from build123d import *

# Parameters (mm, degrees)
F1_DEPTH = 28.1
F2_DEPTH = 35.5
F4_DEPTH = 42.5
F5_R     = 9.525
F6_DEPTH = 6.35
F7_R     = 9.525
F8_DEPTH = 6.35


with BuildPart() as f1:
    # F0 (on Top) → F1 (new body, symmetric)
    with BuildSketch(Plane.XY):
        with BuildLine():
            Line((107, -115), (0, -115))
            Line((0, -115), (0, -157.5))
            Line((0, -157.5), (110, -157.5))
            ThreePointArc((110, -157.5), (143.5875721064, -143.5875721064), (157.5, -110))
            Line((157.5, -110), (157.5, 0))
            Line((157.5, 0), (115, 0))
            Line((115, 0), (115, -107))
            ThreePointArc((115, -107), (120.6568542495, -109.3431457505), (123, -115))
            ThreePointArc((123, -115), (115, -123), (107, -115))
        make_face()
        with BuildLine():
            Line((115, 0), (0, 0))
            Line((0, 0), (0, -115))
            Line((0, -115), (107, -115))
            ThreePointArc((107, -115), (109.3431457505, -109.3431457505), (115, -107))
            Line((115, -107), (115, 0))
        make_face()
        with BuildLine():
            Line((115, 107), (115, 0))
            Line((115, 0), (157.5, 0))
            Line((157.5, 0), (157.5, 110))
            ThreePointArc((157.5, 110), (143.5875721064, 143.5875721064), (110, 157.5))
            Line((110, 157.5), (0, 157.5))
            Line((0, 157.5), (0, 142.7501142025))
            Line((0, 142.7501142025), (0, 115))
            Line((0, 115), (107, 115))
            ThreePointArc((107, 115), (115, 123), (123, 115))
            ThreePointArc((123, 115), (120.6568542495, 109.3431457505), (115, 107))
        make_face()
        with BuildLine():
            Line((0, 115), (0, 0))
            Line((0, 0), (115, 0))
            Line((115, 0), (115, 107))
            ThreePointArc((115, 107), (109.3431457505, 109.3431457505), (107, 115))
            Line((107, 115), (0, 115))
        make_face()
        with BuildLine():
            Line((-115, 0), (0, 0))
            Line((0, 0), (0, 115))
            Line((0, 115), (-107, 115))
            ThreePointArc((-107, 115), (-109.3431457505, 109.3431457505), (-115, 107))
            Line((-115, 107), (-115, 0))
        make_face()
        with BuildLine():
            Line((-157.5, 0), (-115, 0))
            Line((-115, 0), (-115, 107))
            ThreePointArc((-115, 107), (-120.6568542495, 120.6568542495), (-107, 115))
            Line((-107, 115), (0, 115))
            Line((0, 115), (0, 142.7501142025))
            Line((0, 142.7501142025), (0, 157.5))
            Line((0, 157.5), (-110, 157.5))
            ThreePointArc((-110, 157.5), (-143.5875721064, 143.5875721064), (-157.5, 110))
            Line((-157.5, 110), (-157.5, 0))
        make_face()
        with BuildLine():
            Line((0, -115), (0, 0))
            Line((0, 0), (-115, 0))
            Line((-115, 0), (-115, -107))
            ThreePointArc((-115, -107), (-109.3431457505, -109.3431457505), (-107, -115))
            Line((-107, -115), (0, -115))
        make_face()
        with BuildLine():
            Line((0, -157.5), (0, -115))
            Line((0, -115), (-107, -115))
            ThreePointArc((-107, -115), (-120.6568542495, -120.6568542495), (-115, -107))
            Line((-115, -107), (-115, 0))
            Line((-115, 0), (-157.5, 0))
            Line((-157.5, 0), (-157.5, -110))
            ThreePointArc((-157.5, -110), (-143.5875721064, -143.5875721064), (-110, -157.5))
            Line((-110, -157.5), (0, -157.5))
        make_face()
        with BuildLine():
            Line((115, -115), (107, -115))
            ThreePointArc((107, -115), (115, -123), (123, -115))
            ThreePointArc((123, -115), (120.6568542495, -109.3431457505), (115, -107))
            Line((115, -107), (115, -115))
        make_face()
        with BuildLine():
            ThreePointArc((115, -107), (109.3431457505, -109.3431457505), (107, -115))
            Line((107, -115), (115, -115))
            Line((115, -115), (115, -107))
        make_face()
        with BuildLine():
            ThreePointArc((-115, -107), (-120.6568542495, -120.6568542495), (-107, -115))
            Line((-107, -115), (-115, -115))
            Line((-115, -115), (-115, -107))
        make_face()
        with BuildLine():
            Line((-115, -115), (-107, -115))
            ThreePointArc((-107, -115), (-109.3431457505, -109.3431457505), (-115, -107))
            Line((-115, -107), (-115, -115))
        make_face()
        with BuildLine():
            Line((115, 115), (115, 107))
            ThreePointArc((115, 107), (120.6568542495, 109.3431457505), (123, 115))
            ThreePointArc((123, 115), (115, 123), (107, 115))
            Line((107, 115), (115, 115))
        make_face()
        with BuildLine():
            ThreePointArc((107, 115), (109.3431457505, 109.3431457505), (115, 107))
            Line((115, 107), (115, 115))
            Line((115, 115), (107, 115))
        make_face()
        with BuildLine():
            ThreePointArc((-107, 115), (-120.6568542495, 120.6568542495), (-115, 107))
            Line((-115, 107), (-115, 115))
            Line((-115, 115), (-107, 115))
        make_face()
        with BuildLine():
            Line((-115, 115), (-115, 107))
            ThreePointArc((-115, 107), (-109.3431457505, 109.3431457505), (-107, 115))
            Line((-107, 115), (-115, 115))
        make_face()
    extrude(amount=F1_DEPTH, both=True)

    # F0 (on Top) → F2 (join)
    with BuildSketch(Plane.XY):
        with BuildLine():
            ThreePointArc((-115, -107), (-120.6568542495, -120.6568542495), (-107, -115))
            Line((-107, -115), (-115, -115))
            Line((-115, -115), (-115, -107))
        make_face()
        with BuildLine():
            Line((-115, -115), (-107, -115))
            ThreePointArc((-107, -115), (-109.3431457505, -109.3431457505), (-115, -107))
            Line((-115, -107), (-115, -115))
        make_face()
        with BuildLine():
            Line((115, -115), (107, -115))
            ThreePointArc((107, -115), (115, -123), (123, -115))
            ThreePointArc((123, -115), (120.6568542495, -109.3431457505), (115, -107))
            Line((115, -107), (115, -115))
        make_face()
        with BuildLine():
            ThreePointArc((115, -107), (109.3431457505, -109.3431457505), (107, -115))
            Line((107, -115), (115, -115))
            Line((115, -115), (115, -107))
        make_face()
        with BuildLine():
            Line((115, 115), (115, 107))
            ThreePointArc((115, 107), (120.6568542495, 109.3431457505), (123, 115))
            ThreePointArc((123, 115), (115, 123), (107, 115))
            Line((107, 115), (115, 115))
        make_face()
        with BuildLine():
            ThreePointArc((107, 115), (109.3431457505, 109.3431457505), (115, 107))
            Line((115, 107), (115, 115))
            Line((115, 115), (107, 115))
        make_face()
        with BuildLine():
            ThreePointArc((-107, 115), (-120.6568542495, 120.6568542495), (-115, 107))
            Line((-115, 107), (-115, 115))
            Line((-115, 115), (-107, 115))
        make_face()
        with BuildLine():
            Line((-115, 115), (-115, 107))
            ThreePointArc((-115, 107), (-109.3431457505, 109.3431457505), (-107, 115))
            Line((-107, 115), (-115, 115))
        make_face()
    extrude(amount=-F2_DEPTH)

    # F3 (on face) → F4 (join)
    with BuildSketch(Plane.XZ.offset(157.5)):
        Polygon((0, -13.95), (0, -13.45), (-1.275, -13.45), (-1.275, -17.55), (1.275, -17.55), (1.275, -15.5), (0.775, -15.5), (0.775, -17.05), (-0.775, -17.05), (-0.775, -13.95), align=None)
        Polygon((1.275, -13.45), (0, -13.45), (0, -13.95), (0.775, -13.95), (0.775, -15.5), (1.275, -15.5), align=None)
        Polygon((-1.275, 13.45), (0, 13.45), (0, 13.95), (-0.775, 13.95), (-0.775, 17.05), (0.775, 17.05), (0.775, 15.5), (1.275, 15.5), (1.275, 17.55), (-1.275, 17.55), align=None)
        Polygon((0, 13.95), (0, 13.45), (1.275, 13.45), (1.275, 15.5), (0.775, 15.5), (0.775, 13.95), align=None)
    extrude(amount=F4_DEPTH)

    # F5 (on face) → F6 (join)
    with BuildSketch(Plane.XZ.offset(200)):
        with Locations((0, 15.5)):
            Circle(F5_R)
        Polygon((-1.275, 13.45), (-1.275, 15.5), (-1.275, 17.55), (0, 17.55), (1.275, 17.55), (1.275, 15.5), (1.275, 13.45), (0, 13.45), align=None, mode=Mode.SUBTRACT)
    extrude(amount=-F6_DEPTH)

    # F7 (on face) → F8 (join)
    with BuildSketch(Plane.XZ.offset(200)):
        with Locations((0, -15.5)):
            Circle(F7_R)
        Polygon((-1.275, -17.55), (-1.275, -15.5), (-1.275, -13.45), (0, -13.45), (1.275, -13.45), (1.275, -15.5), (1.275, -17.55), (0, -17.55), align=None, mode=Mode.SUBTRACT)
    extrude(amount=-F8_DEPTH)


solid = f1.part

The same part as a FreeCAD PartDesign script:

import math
import FreeCAD as App
import Part
import Sketcher

V = App.Vector
Q = App.Units.Quantity

doc = App.newDocument("Part")
body = doc.addObject("PartDesign::Body", "Body")

sketch1 = doc.addObject("Sketcher::SketchObject", "Sketch")
body.addObject(sketch1)
sketch1.AttachmentSupport = (doc.XY_Plane, [""])
sketch1.MapMode = "FlatFace"
sketch1.addGeometry(Part.ArcOfCircle(Part.Circle(V(110, -110, 0), V(0, 0, 1), 47.5), math.radians(-90), math.radians(0)), False)
sketch1.addGeometry(Part.LineSegment(V(157.5, -110, 0), V(157.5, 110, 0)), False)
sketch1.addGeometry(Part.ArcOfCircle(Part.Circle(V(110, 110, 0), V(0, 0, 1), 47.5), math.radians(0), math.radians(90)), False)
sketch1.addGeometry(Part.LineSegment(V(110, 157.5, 0), V(-110, 157.5, 0)), False)
sketch1.addGeometry(Part.ArcOfCircle(Part.Circle(V(-110, 110, 0), V(0, 0, 1), 47.5), math.radians(90), math.radians(180)), False)
sketch1.addGeometry(Part.LineSegment(V(-157.5, 110, 0), V(-157.5, -110, 0)), False)
sketch1.addGeometry(Part.ArcOfCircle(Part.Circle(V(-110, -110, 0), V(0, 0, 1), 47.5), math.radians(180), math.radians(270)), False)
sketch1.addGeometry(Part.LineSegment(V(-110, -157.5, 0), V(110, -157.5, 0)), False)
sketch1.addConstraint(Sketcher.Constraint("Tangent", 0, 2, 1, 1))
sketch1.addConstraint(Sketcher.Constraint("Tangent", 1, 2, 2, 1))
sketch1.addConstraint(Sketcher.Constraint("Tangent", 2, 2, 3, 1))
sketch1.addConstraint(Sketcher.Constraint("Tangent", 3, 2, 4, 1))
sketch1.addConstraint(Sketcher.Constraint("Tangent", 4, 2, 5, 1))
sketch1.addConstraint(Sketcher.Constraint("Tangent", 5, 2, 6, 1))
sketch1.addConstraint(Sketcher.Constraint("Tangent", 6, 2, 7, 1))
sketch1.addConstraint(Sketcher.Constraint("Tangent", 7, 2, 0, 1))
sketch1.addConstraint(Sketcher.Constraint("Vertical", 1))
sketch1.addConstraint(Sketcher.Constraint("Horizontal", 3))
sketch1.addConstraint(Sketcher.Constraint("Vertical", 5))
sketch1.addConstraint(Sketcher.Constraint("Horizontal", 7))
sketch1.addConstraint(Sketcher.Constraint("Equal", 0, 2))
sketch1.addConstraint(Sketcher.Constraint("Equal", 2, 4))
sketch1.addConstraint(Sketcher.Constraint("Equal", 4, 6))
sketch1.addConstraint(Sketcher.Constraint("Symmetric", 0, 3, 4, 3, -1, 1))
sketch1.addConstraint(Sketcher.Constraint("Equal", 7, 1))
sketch1.addConstraint(Sketcher.Constraint("Radius", 0, Q("47.5 mm")))
sketch1.addConstraint(Sketcher.Constraint("DistanceX", 3, 2, 3, 1, Q("220 mm")))
pad1 = doc.addObject("PartDesign::Pad", "Pad")
body.addObject(pad1)
pad1.Profile = sketch1
pad1.Length = 56.2
pad1.Midplane = True

sketch2 = doc.addObject("Sketcher::SketchObject", "Sketch001")
body.addObject(sketch2)
sketch2.AttachmentSupport = (doc.XY_Plane, [""])
sketch2.MapMode = "FlatFace"
sketch2.addGeometry(Part.ArcOfCircle(Part.Circle(V(-115, -115, 0), V(0, 0, 1), 8), math.radians(90), math.radians(360)), False)
sketch2.addGeometry(Part.ArcOfCircle(Part.Circle(V(-115, -115, 0), V(0, 0, 1), 8), math.radians(0), math.radians(90)), False)
sketch2.addGeometry(Part.ArcOfCircle(Part.Circle(V(115, -115, 0), V(0, 0, 1), 8), math.radians(180), math.radians(360)), False)
sketch2.addGeometry(Part.ArcOfCircle(Part.Circle(V(115, -115, 0), V(0, 0, 1), 8), math.radians(0), math.radians(90)), False)
sketch2.addGeometry(Part.ArcOfCircle(Part.Circle(V(115, -115, 0), V(0, 0, 1), 8), math.radians(90), math.radians(180)), False)
sketch2.addGeometry(Part.ArcOfCircle(Part.Circle(V(115, 115, 0), V(0, 0, 1), 8), math.radians(-90), math.radians(0)), False)
sketch2.addGeometry(Part.ArcOfCircle(Part.Circle(V(115, 115, 0), V(0, 0, 1), 8), math.radians(0), math.radians(180)), False)
sketch2.addGeometry(Part.ArcOfCircle(Part.Circle(V(115, 115, 0), V(0, 0, 1), 8), math.radians(180), math.radians(270)), False)
sketch2.addGeometry(Part.ArcOfCircle(Part.Circle(V(-115, 115, 0), V(0, 0, 1), 8), math.radians(0), math.radians(270)), False)
sketch2.addGeometry(Part.ArcOfCircle(Part.Circle(V(-115, 115, 0), V(0, 0, 1), 8), math.radians(-90), math.radians(0)), False)
sketch2.addConstraint(Sketcher.Constraint("Tangent", 0, 1, 1, 2))
sketch2.addConstraint(Sketcher.Constraint("Coincident", 1, 1, 0, 2))
sketch2.addConstraint(Sketcher.Constraint("Tangent", 2, 2, 3, 1))
sketch2.addConstraint(Sketcher.Constraint("Tangent", 3, 2, 4, 1))
sketch2.addConstraint(Sketcher.Constraint("Tangent", 4, 2, 2, 1))
sketch2.addConstraint(Sketcher.Constraint("Tangent", 5, 2, 6, 1))
sketch2.addConstraint(Sketcher.Constraint("Tangent", 6, 2, 7, 1))
sketch2.addConstraint(Sketcher.Constraint("Tangent", 7, 2, 5, 1))
sketch2.addConstraint(Sketcher.Constraint("Tangent", 8, 1, 9, 2))
sketch2.addConstraint(Sketcher.Constraint("Coincident", 9, 1, 8, 2))
sketch2.addConstraint(Sketcher.Constraint("Equal", 1, 2))
sketch2.addConstraint(Sketcher.Constraint("Equal", 4, 5))
sketch2.addConstraint(Sketcher.Constraint("Equal", 7, 8))
sketch2.addConstraint(Sketcher.Constraint("Symmetric", 0, 3, 5, 3, -1, 1))
sketch2.addConstraint(Sketcher.Constraint("Symmetric", 2, 3, 8, 3, -1, 1))
sketch2.addConstraint(Sketcher.Constraint("Symmetric", 0, 3, 2, 3, -2))
sketch2.addConstraint(Sketcher.Constraint("Horizontal", 4, 3, 1, 1))
sketch2.addConstraint(Sketcher.Constraint("Horizontal", 1, 1, 2, 2))
sketch2.addConstraint(Sketcher.Constraint("Horizontal", 2, 2, 4, 2))
sketch2.addConstraint(Sketcher.Constraint("Horizontal", 9, 3, 5, 2))
sketch2.addConstraint(Sketcher.Constraint("Horizontal", 5, 2, 6, 2))
sketch2.addConstraint(Sketcher.Constraint("Horizontal", 6, 2, 8, 1))
sketch2.addConstraint(Sketcher.Constraint("Vertical", 9, 3, 0, 1))
sketch2.addConstraint(Sketcher.Constraint("Vertical", 7, 3, 3, 2))
sketch2.addConstraint(Sketcher.Constraint("Vertical", 3, 2, 7, 2))
sketch2.addConstraint(Sketcher.Constraint("Vertical", 0, 1, 9, 1))
sketch2.addConstraint(Sketcher.Constraint("Radius", 0, Q("8 mm")))
sketch2.addConstraint(Sketcher.Constraint("DistanceX", 0, 3, -1, 1, Q("115 mm")))
sketch2.addConstraint(Sketcher.Constraint("DistanceY", 0, 3, -1, 1, Q("115 mm")))
pad2 = doc.addObject("PartDesign::Pad", "Pad001")
body.addObject(pad2)
pad2.Profile = sketch2
pad2.Length = 35.5
pad2.Reversed = True

sketch3 = doc.addObject("Sketcher::SketchObject", "Sketch002")
body.addObject(sketch3)
sketch3.AttachmentSupport = (doc.XZ_Plane, [""])
sketch3.MapMode = "FlatFace"
sketch3.AttachmentOffset = App.Placement(V(0, 0, 157.5), App.Rotation())
sketch3.addGeometry(Part.LineSegment(V(-1.275, -13.45, 0), V(-1.275, -17.55, 0)), False)
sketch3.addGeometry(Part.LineSegment(V(-1.275, -17.55, 0), V(1.275, -17.55, 0)), False)
sketch3.addGeometry(Part.LineSegment(V(1.275, -17.55, 0), V(1.275, -13.45, 0)), False)
sketch3.addGeometry(Part.LineSegment(V(1.275, -13.45, 0), V(-1.275, -13.45, 0)), False)
sketch3.addGeometry(Part.LineSegment(V(0.775, -17.05, 0), V(-0.775, -17.05, 0)), False)
sketch3.addGeometry(Part.LineSegment(V(-0.775, -17.05, 0), V(-0.775, -13.95, 0)), False)
sketch3.addGeometry(Part.LineSegment(V(-0.775, -13.95, 0), V(0.775, -13.95, 0)), False)
sketch3.addGeometry(Part.LineSegment(V(0.775, -13.95, 0), V(0.775, -17.05, 0)), False)
sketch3.addGeometry(Part.LineSegment(V(-1.275, 13.45, 0), V(1.275, 13.45, 0)), False)
sketch3.addGeometry(Part.LineSegment(V(1.275, 13.45, 0), V(1.275, 17.55, 0)), False)
sketch3.addGeometry(Part.LineSegment(V(1.275, 17.55, 0), V(-1.275, 17.55, 0)), False)
sketch3.addGeometry(Part.LineSegment(V(-1.275, 17.55, 0), V(-1.275, 13.45, 0)), False)
sketch3.addGeometry(Part.LineSegment(V(-0.775, 13.95, 0), V(-0.775, 17.05, 0)), False)
sketch3.addGeometry(Part.LineSegment(V(-0.775, 17.05, 0), V(0.775, 17.05, 0)), False)
sketch3.addGeometry(Part.LineSegment(V(0.775, 17.05, 0), V(0.775, 13.95, 0)), False)
sketch3.addGeometry(Part.LineSegment(V(0.775, 13.95, 0), V(-0.775, 13.95, 0)), False)
sketch3.addConstraint(Sketcher.Constraint("Coincident", 0, 2, 1, 1))
sketch3.addConstraint(Sketcher.Constraint("Coincident", 1, 2, 2, 1))
sketch3.addConstraint(Sketcher.Constraint("Coincident", 2, 2, 3, 1))
sketch3.addConstraint(Sketcher.Constraint("Coincident", 3, 2, 0, 1))
sketch3.addConstraint(Sketcher.Constraint("Coincident", 4, 2, 5, 1))
sketch3.addConstraint(Sketcher.Constraint("Coincident", 5, 2, 6, 1))
sketch3.addConstraint(Sketcher.Constraint("Coincident", 6, 2, 7, 1))
sketch3.addConstraint(Sketcher.Constraint("Coincident", 7, 2, 4, 1))
sketch3.addConstraint(Sketcher.Constraint("Coincident", 8, 2, 9, 1))
sketch3.addConstraint(Sketcher.Constraint("Coincident", 9, 2, 10, 1))
sketch3.addConstraint(Sketcher.Constraint("Coincident", 10, 2, 11, 1))
sketch3.addConstraint(Sketcher.Constraint("Coincident", 11, 2, 8, 1))
sketch3.addConstraint(Sketcher.Constraint("Coincident", 12, 2, 13, 1))
sketch3.addConstraint(Sketcher.Constraint("Coincident", 13, 2, 14, 1))
sketch3.addConstraint(Sketcher.Constraint("Coincident", 14, 2, 15, 1))
sketch3.addConstraint(Sketcher.Constraint("Coincident", 15, 2, 12, 1))
sketch3.addConstraint(Sketcher.Constraint("Vertical", 0))
sketch3.addConstraint(Sketcher.Constraint("Horizontal", 1))
sketch3.addConstraint(Sketcher.Constraint("Vertical", 2))
sketch3.addConstraint(Sketcher.Constraint("Horizontal", 3))
sketch3.addConstraint(Sketcher.Constraint("Horizontal", 4))
sketch3.addConstraint(Sketcher.Constraint("Vertical", 5))
sketch3.addConstraint(Sketcher.Constraint("Horizontal", 6))
sketch3.addConstraint(Sketcher.Constraint("Vertical", 7))
sketch3.addConstraint(Sketcher.Constraint("Horizontal", 8))
sketch3.addConstraint(Sketcher.Constraint("Vertical", 9))
sketch3.addConstraint(Sketcher.Constraint("Horizontal", 10))
sketch3.addConstraint(Sketcher.Constraint("Vertical", 11))
sketch3.addConstraint(Sketcher.Constraint("Vertical", 12))
sketch3.addConstraint(Sketcher.Constraint("Horizontal", 13))
sketch3.addConstraint(Sketcher.Constraint("Vertical", 14))
sketch3.addConstraint(Sketcher.Constraint("Horizontal", 15))
sketch3.addConstraint(Sketcher.Constraint("Symmetric", 3, 2, 8, 2, -1, 1))
sketch3.addConstraint(Sketcher.Constraint("Symmetric", 1, 2, 10, 2, -1, 1))
sketch3.addConstraint(Sketcher.Constraint("Symmetric", 7, 2, 12, 2, -1, 1))
sketch3.addConstraint(Sketcher.Constraint("Symmetric", 5, 2, 14, 2, -1, 1))
sketch3.addConstraint(Sketcher.Constraint("Vertical", 2, 2, 8, 2))
sketch3.addConstraint(Sketcher.Constraint("Vertical", 5, 2, 12, 2))
sketch3.addConstraint(Sketcher.Constraint("DistanceY", 0, 2, 0, 1, Q("4.1 mm")))
sketch3.addConstraint(Sketcher.Constraint("DistanceY", 5, 1, 5, 2, Q("3.1 mm")))
sketch3.addConstraint(Sketcher.Constraint("DistanceY", 2, 2, 9, 2, Q("31 mm")))
sketch3.addConstraint(Sketcher.Constraint("DistanceX", 1, 1, 1, 2, Q("2.55 mm")))
sketch3.addConstraint(Sketcher.Constraint("DistanceX", 4, 2, 4, 1, Q("1.55 mm")))
sketch3.addConstraint(Sketcher.Constraint("DistanceY", 0, 2, 4, 2, Q("0.5 mm")))
pad3 = doc.addObject("PartDesign::Pad", "Pad002")
body.addObject(pad3)
pad3.Profile = sketch3
pad3.Length = 42.5

sketch4 = doc.addObject("Sketcher::SketchObject", "Sketch003")
body.addObject(sketch4)
sketch4.AttachmentSupport = (doc.XZ_Plane, [""])
sketch4.MapMode = "FlatFace"
sketch4.AttachmentOffset = App.Placement(V(0, 0, 200), App.Rotation())
sketch4.addGeometry(Part.Circle(V(0, 15.5, 0), V(0, 0, 1), 9.525), False)
sketch4.addGeometry(Part.LineSegment(V(1.275, 13.45, 0), V(-1.275, 13.45, 0)), False)
sketch4.addGeometry(Part.LineSegment(V(-1.275, 13.45, 0), V(-1.275, 17.55, 0)), False)
sketch4.addGeometry(Part.LineSegment(V(-1.275, 17.55, 0), V(1.275, 17.55, 0)), False)
sketch4.addGeometry(Part.LineSegment(V(1.275, 17.55, 0), V(1.275, 13.45, 0)), False)
sketch4.addConstraint(Sketcher.Constraint("Coincident", 1, 2, 2, 1))
sketch4.addConstraint(Sketcher.Constraint("Coincident", 2, 2, 3, 1))
sketch4.addConstraint(Sketcher.Constraint("Coincident", 3, 2, 4, 1))
sketch4.addConstraint(Sketcher.Constraint("Coincident", 4, 2, 1, 1))
sketch4.addConstraint(Sketcher.Constraint("Horizontal", 1))
sketch4.addConstraint(Sketcher.Constraint("Vertical", 2))
sketch4.addConstraint(Sketcher.Constraint("Horizontal", 3))
sketch4.addConstraint(Sketcher.Constraint("Vertical", 4))
sketch4.addConstraint(Sketcher.Constraint("PointOnObject", 0, 3, -2))
sketch4.addConstraint(Sketcher.Constraint("Diameter", 0, Q("19.05 mm")))
sketch4.addConstraint(Sketcher.Constraint("DistanceY", 2, 1, 2, 2, Q("4.1 mm")))
sketch4.addConstraint(Sketcher.Constraint("DistanceX", 1, 2, 1, 1, Q("2.55 mm")))
sketch4.addConstraint(Sketcher.Constraint("DistanceY", -1, 1, 0, 3, Q("15.5 mm")))
sketch4.addConstraint(Sketcher.Constraint("DistanceY", -1, 1, 1, 2, Q("13.45 mm")))
sketch4.addConstraint(Sketcher.Constraint("DistanceX", 1, 2, -1, 1, Q("1.275 mm")))
pad4 = doc.addObject("PartDesign::Pad", "Pad003")
body.addObject(pad4)
pad4.Profile = sketch4
pad4.Length = 6.35
pad4.Reversed = True

sketch5 = doc.addObject("Sketcher::SketchObject", "Sketch004")
body.addObject(sketch5)
sketch5.AttachmentSupport = (doc.XZ_Plane, [""])
sketch5.MapMode = "FlatFace"
sketch5.AttachmentOffset = App.Placement(V(0, 0, 200), App.Rotation())
sketch5.addGeometry(Part.Circle(V(0, -15.5, 0), V(0, 0, 1), 9.525), False)
sketch5.addGeometry(Part.LineSegment(V(1.275, -17.55, 0), V(-1.275, -17.55, 0)), False)
sketch5.addGeometry(Part.LineSegment(V(-1.275, -17.55, 0), V(-1.275, -13.45, 0)), False)
sketch5.addGeometry(Part.LineSegment(V(-1.275, -13.45, 0), V(1.275, -13.45, 0)), False)
sketch5.addGeometry(Part.LineSegment(V(1.275, -13.45, 0), V(1.275, -17.55, 0)), False)
sketch5.addConstraint(Sketcher.Constraint("Coincident", 1, 2, 2, 1))
sketch5.addConstraint(Sketcher.Constraint("Coincident", 2, 2, 3, 1))
sketch5.addConstraint(Sketcher.Constraint("Coincident", 3, 2, 4, 1))
sketch5.addConstraint(Sketcher.Constraint("Coincident", 4, 2, 1, 1))
sketch5.addConstraint(Sketcher.Constraint("Horizontal", 1))
sketch5.addConstraint(Sketcher.Constraint("Vertical", 2))
sketch5.addConstraint(Sketcher.Constraint("Horizontal", 3))
sketch5.addConstraint(Sketcher.Constraint("Vertical", 4))
sketch5.addConstraint(Sketcher.Constraint("PointOnObject", 0, 3, -2))
sketch5.addConstraint(Sketcher.Constraint("Diameter", 0, Q("19.05 mm")))
sketch5.addConstraint(Sketcher.Constraint("DistanceY", 2, 1, 2, 2, Q("4.1 mm")))
sketch5.addConstraint(Sketcher.Constraint("DistanceX", 1, 2, 1, 1, Q("2.55 mm")))
sketch5.addConstraint(Sketcher.Constraint("DistanceY", 0, 3, -1, 1, Q("15.5 mm")))
sketch5.addConstraint(Sketcher.Constraint("DistanceY", 1, 2, -1, 1, Q("17.55 mm")))
sketch5.addConstraint(Sketcher.Constraint("DistanceX", 1, 2, -1, 1, Q("1.275 mm")))
pad5 = doc.addObject("PartDesign::Pad", "Pad004")
body.addObject(pad5)
pad5.Profile = sketch5
pad5.Length = 6.35
pad5.Reversed = True

doc.recompute()
